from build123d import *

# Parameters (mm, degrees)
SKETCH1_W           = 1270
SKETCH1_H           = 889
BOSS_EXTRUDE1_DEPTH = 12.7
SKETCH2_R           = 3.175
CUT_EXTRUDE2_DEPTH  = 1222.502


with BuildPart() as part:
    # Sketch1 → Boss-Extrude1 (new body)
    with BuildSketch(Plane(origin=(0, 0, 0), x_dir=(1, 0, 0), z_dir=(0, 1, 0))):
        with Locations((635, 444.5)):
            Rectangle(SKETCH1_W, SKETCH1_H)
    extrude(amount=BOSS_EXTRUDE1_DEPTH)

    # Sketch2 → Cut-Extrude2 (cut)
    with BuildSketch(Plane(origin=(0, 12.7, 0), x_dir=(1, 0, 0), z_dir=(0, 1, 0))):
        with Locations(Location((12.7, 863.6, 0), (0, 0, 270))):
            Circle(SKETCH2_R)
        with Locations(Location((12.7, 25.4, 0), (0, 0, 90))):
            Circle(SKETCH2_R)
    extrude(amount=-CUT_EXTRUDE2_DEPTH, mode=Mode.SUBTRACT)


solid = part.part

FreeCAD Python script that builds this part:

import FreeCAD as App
import Part
import Sketcher
from FreeCAD import Vector
Q = App.Units.Quantity


def add_polygon(sketch, points):
    """Adds a closed chain of lines whose ends are joined by coincident constraints."""
    first, n = sketch.GeometryCount, len(points)
    for a, b in zip(points, points[1:] + points[:1]):
        sketch.addGeometry(Part.LineSegment(App.Vector(*a, 0), App.Vector(*b, 0)), False)
    for i in range(n):
        sketch.addConstraint(Sketcher.Constraint("Coincident", first + i, 2, first + (i + 1) % n, 1))

doc = App.newDocument("Part")
params = doc.addObject("Spreadsheet::Sheet", "Params")
for row, (alias, value) in enumerate([
    ("sketch1_width", "50 in"),
    ("sketch1_height", "35 in"),
    ("pad1_length", "0.5 in"),
    ("sketch2_diameter", "0.25 in"),
    ("pocket1_length", "48.13 in"),
], start=1):
    params.set(f"A{row}", alias)
    params.set(f"B{row}", "=" + value)
    params.setAlias(f"B{row}", alias)

body = doc.addObject("PartDesign::Body", "Body")

# Sketch on XZ plane
sketch1 = body.newObject("Sketcher::SketchObject", "Sketch")
sketch1.AttachmentSupport = (doc.getObject("XZ_Plane"), [""])
sketch1.MapMode = "FlatFace"
add_polygon(sketch1, [(0, -889), (0, 0), (1270, 0), (1270, -889)])  # lines 0-3
sketch1.addConstraint(Sketcher.Constraint("Vertical", 0))
sketch1.addConstraint(Sketcher.Constraint("Horizontal", 1))
sketch1.addConstraint(Sketcher.Constraint("Vertical", 2))
sketch1.addConstraint(Sketcher.Constraint("Horizontal", 3))
sketch1.addConstraint(Sketcher.Constraint("Coincident", 0, 2, -1, 1))
sketch1.addConstraint(Sketcher.Constraint("DistanceX", 1, 1, 1, 2, Q("50 in")))
sketch1.addConstraint(Sketcher.Constraint("DistanceY", 0, 1, 0, 2, Q("35 in")))
sketch1.setExpression("Constraints[9]", "Params.sketch1_width")
sketch1.setExpression("Constraints[10]", "Params.sketch1_height")
pad1 = body.newObject("PartDesign::Pad", "Pad")
pad1.Profile = sketch1
pad1.setExpression("Length", "Params.pad1_length")
pad1.Reversed = True

# Sketch on XZ plane
sketch2 = body.newObject("Sketcher::SketchObject", "Sketch001")
sketch2.AttachmentSupport = (doc.getObject("XZ_Plane"), [""])
sketch2.MapMode = "FlatFace"
sketch2.AttachmentOffset = App.Placement(Vector(0, 0, -0.5 * 25.4), App.Rotation())
sketch2.addGeometry(Part.Circle(Vector(12.7, -863.6, 0), Vector(0, 0, 1), 3.2), False)
sketch2.addGeometry(Part.Circle(Vector(12.7, -25.4, 0), Vector(0, 0, 1), 3.2), False)
sketch2.addConstraint(Sketcher.Constraint("Equal", 0, 1))
sketch2.addConstraint(Sketcher.Constraint("Vertical", 0, 3, 1, 3))
sketch2.addConstraint(Sketcher.Constraint("Diameter", 0, Q("0.25 in")))
sketch2.addConstraint(Sketcher.Constraint("DistanceY", 0, 3, -1, 1, Q("34 in")))
sketch2.addConstraint(Sketcher.Constraint("DistanceY", 1, 3, -1, 1, Q("1 in")))
sketch2.addConstraint(Sketcher.Constraint("DistanceX", -1, 1, 0, 3, Q("0.5 in")))
sketch2.setExpression("Constraints[2]", "Params.sketch2_diameter")
pocket1 = body.newObject("PartDesign::Pocket", "Pocket")
pocket1.Profile = sketch2
pocket1.setExpression("Length", "Params.pocket1_length")
pocket1.Reversed = True

doc.recompute()
